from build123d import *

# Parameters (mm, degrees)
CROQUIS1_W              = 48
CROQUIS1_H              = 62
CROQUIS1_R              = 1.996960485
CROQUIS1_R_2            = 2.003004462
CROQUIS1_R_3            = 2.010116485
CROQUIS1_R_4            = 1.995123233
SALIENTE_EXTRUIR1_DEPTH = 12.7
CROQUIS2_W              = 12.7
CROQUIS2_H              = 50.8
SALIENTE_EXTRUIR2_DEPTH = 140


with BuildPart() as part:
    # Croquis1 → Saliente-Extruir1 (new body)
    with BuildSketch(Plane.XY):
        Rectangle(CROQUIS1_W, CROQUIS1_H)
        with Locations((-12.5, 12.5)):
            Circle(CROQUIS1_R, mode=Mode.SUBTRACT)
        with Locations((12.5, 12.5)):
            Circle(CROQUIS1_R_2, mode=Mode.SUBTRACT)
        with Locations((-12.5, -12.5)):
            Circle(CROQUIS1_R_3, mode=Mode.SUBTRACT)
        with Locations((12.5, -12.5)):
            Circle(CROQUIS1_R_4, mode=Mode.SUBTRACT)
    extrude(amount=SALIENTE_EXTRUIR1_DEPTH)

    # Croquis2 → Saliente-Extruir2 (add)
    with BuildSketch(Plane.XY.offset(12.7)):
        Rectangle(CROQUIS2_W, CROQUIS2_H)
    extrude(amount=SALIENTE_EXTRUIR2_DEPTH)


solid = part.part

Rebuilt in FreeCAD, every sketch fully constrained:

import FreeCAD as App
import Part
import Sketcher

V = App.Vector


def add_polygon(sketch, points):
    """Adds a closed chain of lines whose ends are joined by coincident constraints."""
    first, n = sketch.GeometryCount, len(points)
    for a, b in zip(points, points[1:] + points[:1]):
        sketch.addGeometry(Part.LineSegment(App.Vector(*a, 0), App.Vector(*b, 0)), False)
    for i in range(n):
        sketch.addConstraint(Sketcher.Constraint("Coincident", first + i, 2, first + (i + 1) % n, 1))

doc = App.newDocument("Part")
body = doc.addObject("PartDesign::Body", "Body")

# Sketch on XY plane
sketch1 = body.newObject("Sketcher::SketchObject", "Sketch")
sketch1.AttachmentSupport = (doc.getObject("XY_Plane"), [""])
sketch1.MapMode = "FlatFace"
add_polygon(sketch1, [(-24, 31), (-24, -31), (24, -31), (24, 31)])  # lines 0-3
sketch1.addGeometry(Part.Circle(V(-12.5, -12.5, 0), V(0, 0, 1), 2), False)  # 4
sketch1.addGeometry(Part.Circle(V(12.5, -12.5, 0), V(0, 0, 1), 2), False)  # 5
sketch1.addGeometry(Part.Circle(V(-12.5, 12.5, 0), V(0, 0, 1), 2), False)  # 6
sketch1.addGeometry(Part.Circle(V(12.5, 12.5, 0), V(0, 0, 1), 2), False)  # 7
sketch1.addConstraint([
    Sketcher.Constraint("Vertical", 0),
    Sketcher.Constraint("Horizontal", 1),
    Sketcher.Constraint("Vertical", 2),
    Sketcher.Constraint("Horizontal", 3),
    Sketcher.Constraint("Symmetric", 5, 3, 6, 3, -1, 1),
    Sketcher.Constraint("Symmetric", 4, 3, 7, 3, -1, 1),
    Sketcher.Constraint("Symmetric", 0, 2, 2, 2, -1, 1),
    Sketcher.Constraint("Symmetric", 4, 3, 5, 3, -2),
    Sketcher.Constraint("DistanceX", 1, 1, 1, 2, 48.0),
    Sketcher.Constraint("DistanceY", 0, 2, 0, 1, 62.0),
    Sketcher.Constraint("DistanceX", 4, 3, 5, 3, 25.0),
    Sketcher.Constraint("DistanceY", 4, 3, 6, 3, 25.0),
    Sketcher.Constraint("Diameter", 6, 3.993921),
    Sketcher.Constraint("Diameter", 7, 4.006009),
    Sketcher.Constraint("Diameter", 4, 4.020233),
    Sketcher.Constraint("Diameter", 5, 3.990246),
])
pad1 = body.newObject("PartDesign::Pad", "Pad")
pad1.Profile = sketch1
pad1.Length = 12.7

# Sketch on XY plane
sketch2 = body.newObject("Sketcher::SketchObject", "Sketch001")
sketch2.AttachmentSupport = (doc.getObject("XY_Plane"), [""])
sketch2.MapMode = "FlatFace"
sketch2.AttachmentOffset = App.Placement(V(0, 0, 12.7), App.Rotation())
add_polygon(sketch2, [(-6, 25), (-6, -25), (6, -25), (6, 25)])  # lines 0-3
sketch2.addConstraint([
    Sketcher.Constraint("Vertical", 0),
    Sketcher.Constraint("Horizontal", 1),
    Sketcher.Constraint("Vertical", 2),
    Sketcher.Constraint("Horizontal", 3),
    Sketcher.Constraint("Symmetric", 0, 2, 2, 2, -1, 1),
    Sketcher.Constraint("DistanceX", 1, 1, 1, 2, 12.7),
    Sketcher.Constraint("DistanceY", 0, 2, 0, 1, 50.8),
])
pad2 = body.newObject("PartDesign::Pad", "Pad001")
pad2.Profile = sketch2
pad2.Length = 140

doc.recompute()
